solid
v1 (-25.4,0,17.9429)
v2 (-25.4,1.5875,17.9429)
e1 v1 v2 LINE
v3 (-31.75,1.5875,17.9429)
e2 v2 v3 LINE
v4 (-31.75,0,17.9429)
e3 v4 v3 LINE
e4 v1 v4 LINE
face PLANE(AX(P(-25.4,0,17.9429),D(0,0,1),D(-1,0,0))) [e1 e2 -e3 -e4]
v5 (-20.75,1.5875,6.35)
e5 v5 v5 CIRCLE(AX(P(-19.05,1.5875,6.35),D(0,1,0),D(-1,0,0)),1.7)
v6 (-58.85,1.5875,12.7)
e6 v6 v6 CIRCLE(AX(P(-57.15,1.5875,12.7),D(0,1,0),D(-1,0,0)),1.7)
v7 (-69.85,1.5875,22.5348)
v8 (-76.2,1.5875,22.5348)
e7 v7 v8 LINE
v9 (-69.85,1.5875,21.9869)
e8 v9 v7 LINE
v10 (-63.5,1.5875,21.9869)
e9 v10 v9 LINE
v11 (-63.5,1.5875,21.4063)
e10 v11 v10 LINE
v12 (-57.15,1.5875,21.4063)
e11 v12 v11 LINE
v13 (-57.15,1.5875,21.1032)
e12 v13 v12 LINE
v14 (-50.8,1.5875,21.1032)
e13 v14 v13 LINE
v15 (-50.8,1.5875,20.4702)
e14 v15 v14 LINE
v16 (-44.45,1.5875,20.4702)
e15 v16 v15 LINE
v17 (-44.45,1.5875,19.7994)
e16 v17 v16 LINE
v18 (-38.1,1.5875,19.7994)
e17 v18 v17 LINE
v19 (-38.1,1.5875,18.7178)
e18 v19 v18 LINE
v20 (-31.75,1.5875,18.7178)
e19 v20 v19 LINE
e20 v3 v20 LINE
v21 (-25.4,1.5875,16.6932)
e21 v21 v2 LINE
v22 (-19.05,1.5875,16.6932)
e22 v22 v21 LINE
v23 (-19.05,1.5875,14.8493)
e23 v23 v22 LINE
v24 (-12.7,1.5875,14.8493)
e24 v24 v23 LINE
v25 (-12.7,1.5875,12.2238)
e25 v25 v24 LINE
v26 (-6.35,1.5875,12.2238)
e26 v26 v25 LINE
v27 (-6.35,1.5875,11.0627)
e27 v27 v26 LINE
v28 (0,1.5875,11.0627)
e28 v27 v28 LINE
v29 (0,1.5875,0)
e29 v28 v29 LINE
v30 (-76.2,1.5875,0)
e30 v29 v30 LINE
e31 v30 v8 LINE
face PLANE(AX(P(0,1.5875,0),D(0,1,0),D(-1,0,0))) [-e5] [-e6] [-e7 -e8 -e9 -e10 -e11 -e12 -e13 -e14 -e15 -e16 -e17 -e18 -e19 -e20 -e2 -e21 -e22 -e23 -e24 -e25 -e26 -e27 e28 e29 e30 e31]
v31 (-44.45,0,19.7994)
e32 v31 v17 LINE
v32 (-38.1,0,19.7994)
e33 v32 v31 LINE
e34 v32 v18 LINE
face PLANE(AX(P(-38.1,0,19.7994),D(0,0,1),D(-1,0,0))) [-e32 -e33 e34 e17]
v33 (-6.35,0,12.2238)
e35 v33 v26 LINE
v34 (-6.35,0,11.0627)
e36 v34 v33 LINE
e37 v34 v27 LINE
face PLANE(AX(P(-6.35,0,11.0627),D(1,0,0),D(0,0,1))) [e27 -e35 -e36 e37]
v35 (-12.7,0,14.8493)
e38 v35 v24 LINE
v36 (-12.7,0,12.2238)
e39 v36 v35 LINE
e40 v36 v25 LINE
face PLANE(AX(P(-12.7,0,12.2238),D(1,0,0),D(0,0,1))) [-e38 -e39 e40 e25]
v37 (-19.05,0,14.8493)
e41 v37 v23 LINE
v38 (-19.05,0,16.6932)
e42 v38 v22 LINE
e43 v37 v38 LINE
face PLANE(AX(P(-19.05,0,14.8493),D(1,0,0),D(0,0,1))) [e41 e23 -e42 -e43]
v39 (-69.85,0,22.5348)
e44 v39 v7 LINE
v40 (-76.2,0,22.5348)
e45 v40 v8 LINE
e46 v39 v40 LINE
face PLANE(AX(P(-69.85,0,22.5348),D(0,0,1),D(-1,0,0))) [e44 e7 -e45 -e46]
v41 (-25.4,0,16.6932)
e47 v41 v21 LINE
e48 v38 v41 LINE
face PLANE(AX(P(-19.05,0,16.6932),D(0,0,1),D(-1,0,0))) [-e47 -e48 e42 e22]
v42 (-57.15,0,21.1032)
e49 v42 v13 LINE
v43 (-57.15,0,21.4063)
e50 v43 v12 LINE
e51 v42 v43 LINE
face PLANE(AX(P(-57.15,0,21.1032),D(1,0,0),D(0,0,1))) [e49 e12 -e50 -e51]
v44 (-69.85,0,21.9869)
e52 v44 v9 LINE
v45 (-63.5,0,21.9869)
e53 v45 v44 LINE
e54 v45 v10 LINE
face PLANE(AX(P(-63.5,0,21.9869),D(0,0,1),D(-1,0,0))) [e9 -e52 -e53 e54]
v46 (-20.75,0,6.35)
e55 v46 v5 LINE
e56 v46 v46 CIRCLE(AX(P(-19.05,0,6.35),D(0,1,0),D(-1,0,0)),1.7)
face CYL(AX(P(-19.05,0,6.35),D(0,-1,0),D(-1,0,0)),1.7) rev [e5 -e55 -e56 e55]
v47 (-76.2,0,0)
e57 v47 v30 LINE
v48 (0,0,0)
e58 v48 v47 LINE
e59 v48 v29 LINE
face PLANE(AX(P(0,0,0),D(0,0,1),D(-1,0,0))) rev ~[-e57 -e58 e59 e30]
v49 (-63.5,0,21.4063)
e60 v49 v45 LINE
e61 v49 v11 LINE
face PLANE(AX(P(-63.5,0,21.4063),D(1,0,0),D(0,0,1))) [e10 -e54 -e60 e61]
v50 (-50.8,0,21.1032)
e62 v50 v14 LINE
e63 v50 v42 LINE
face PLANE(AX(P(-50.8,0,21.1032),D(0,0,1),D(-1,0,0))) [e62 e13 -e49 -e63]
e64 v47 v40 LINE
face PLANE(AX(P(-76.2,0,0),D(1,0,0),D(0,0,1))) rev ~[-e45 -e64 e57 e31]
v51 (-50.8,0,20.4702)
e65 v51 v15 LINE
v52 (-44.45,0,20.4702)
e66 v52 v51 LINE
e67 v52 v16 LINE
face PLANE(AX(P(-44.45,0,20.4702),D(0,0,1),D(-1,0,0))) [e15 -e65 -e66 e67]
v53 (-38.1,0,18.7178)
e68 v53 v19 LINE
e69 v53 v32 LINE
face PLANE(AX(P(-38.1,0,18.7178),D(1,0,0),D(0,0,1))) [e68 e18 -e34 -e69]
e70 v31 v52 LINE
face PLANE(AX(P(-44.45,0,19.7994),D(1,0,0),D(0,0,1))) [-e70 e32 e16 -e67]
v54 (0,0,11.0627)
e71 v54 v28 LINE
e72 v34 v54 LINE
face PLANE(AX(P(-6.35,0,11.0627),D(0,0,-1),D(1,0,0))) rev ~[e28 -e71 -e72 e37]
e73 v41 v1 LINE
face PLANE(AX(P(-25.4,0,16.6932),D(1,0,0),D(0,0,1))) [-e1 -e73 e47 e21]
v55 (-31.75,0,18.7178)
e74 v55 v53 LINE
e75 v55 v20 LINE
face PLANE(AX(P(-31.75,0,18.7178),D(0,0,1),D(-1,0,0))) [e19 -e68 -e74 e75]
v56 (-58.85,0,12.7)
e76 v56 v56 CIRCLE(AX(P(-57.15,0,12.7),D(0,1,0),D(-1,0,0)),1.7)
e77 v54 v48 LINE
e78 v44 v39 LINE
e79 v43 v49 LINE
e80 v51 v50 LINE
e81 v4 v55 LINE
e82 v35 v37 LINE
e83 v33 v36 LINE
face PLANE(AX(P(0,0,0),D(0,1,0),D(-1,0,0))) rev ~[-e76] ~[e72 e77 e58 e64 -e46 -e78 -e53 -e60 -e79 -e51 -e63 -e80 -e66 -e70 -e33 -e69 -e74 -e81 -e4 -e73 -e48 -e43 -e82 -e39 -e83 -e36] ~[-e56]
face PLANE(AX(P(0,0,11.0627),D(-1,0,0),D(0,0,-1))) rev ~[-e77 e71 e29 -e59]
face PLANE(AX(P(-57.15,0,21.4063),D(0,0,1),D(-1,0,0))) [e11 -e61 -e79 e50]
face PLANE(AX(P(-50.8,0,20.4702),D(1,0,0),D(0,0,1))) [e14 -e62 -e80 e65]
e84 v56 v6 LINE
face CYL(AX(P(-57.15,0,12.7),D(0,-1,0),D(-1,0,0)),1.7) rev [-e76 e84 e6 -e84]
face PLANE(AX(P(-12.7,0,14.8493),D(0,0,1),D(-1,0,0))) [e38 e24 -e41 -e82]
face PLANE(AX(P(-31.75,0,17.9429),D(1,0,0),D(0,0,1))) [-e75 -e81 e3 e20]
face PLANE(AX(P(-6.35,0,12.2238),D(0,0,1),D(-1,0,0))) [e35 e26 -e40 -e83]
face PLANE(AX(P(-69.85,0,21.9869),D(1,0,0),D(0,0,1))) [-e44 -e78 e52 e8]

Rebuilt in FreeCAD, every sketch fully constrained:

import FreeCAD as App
import Part
import Sketcher
from FreeCAD import Vector
Q = App.Units.Quantity

doc = App.newDocument("Part")
body = doc.addObject("PartDesign::Body", "Body")

# Sketch on XZ plane
sketch1 = body.newObject("Sketcher::SketchObject", "Sketch")
sketch1.AttachmentSupport = (doc.getObject("XZ_Plane"), [""])
sketch1.MapMode = "FlatFace"
sketch1.addGeometry([
    Part.LineSegment(Vector(-6.35, 12.22, 0), Vector(-6.35, 11.06, 0)),  # 0
    Part.LineSegment(Vector(-6.35, 11.06, 0), Vector(0, 11.06, 0)),  # 1
    Part.LineSegment(Vector(0, 11.06, 0), Vector(0, 0, 0)),  # 2
    Part.LineSegment(Vector(0, 0, 0), Vector(-76.2, 0, 0)),  # 3
    Part.LineSegment(Vector(-76.2, 0, 0), Vector(-76.2, 22.53, 0)),  # 4
    Part.LineSegment(Vector(-76.2, 22.53, 0), Vector(-69.85, 22.53, 0)),  # 5
    Part.LineSegment(Vector(-69.85, 22.53, 0), Vector(-69.85, 21.99, 0)),  # 6
    Part.LineSegment(Vector(-69.85, 21.99, 0), Vector(-63.5, 21.99, 0)),  # 7
    Part.LineSegment(Vector(-63.5, 21.99, 0), Vector(-63.5, 21.41, 0)),  # 8
    Part.LineSegment(Vector(-63.5, 21.41, 0), Vector(-57.15, 21.41, 0)),  # 9
    Part.LineSegment(Vector(-57.15, 21.41, 0), Vector(-57.15, 21.1, 0)),  # 10
    Part.LineSegment(Vector(-57.15, 21.1, 0), Vector(-50.8, 21.1, 0)),  # 11
    Part.LineSegment(Vector(-50.8, 21.1, 0), Vector(-50.8, 20.47, 0)),  # 12
    Part.LineSegment(Vector(-50.8, 20.47, 0), Vector(-44.45, 20.47, 0)),  # 13
    Part.LineSegment(Vector(-44.45, 20.47, 0), Vector(-44.45, 19.8, 0)),  # 14
    Part.LineSegment(Vector(-44.45, 19.8, 0), Vector(-38.1, 19.8, 0)),  # 15
    Part.LineSegment(Vector(-38.1, 19.8, 0), Vector(-38.1, 18.72, 0)),  # 16
    Part.LineSegment(Vector(-38.1, 18.72, 0), Vector(-31.75, 18.72, 0)),  # 17
    Part.LineSegment(Vector(-31.75, 18.72, 0), Vector(-31.75, 17.94, 0)),  # 18
    Part.LineSegment(Vector(-31.75, 17.94, 0), Vector(-25.4, 17.94, 0)),  # 19
    Part.LineSegment(Vector(-25.4, 17.94, 0), Vector(-25.4, 16.69, 0)),  # 20
    Part.LineSegment(Vector(-25.4, 16.69, 0), Vector(-19.05, 16.69, 0)),  # 21
    Part.LineSegment(Vector(-19.05, 16.69, 0), Vector(-19.05, 14.85, 0)),  # 22
    Part.LineSegment(Vector(-19.05, 14.85, 0), Vector(-12.7, 14.85, 0)),  # 23
    Part.LineSegment(Vector(-12.7, 14.85, 0), Vector(-12.7, 12.22, 0)),  # 24
    Part.LineSegment(Vector(-12.7, 12.22, 0), Vector(-6.35, 12.22, 0)),  # 25
    Part.Circle(Vector(-19.05, 6.35, 0), Vector(0, 0, 1), 1.7),  # 26
    Part.Circle(Vector(-57.15, 12.7, 0), Vector(0, 0, 1), 1.7),  # 27
], False)
sketch1.addConstraint([
    Sketcher.Constraint("Coincident", 0, 2, 1, 1),
    Sketcher.Constraint("Coincident", 1, 2, 2, 1),
    Sketcher.Constraint("Coincident", 2, 2, 3, 1),
    Sketcher.Constraint("Coincident", 3, 2, 4, 1),
    Sketcher.Constraint("Coincident", 4, 2, 5, 1),
    Sketcher.Constraint("Coincident", 5, 2, 6, 1),
    Sketcher.Constraint("Coincident", 6, 2, 7, 1),
    Sketcher.Constraint("Coincident", 7, 2, 8, 1),
    Sketcher.Constraint("Coincident", 8, 2, 9, 1),
    Sketcher.Constraint("Coincident", 9, 2, 10, 1),
    Sketcher.Constraint("Coincident", 10, 2, 11, 1),
    Sketcher.Constraint("Coincident", 11, 2, 12, 1),
    Sketcher.Constraint("Coincident", 12, 2, 13, 1),
    Sketcher.Constraint("Coincident", 13, 2, 14, 1),
    Sketcher.Constraint("Coincident", 14, 2, 15, 1),
    Sketcher.Constraint("Coincident", 15, 2, 16, 1),
    Sketcher.Constraint("Coincident", 16, 2, 17, 1),
    Sketcher.Constraint("Coincident", 17, 2, 18, 1),
    Sketcher.Constraint("Coincident", 18, 2, 19, 1),
    Sketcher.Constraint("Coincident", 19, 2, 20, 1),
    Sketcher.Constraint("Coincident", 20, 2, 21, 1),
    Sketcher.Constraint("Coincident", 21, 2, 22, 1),
    Sketcher.Constraint("Coincident", 22, 2, 23, 1),
    Sketcher.Constraint("Coincident", 23, 2, 24, 1),
    Sketcher.Constraint("Coincident", 24, 2, 25, 1),
    Sketcher.Constraint("Coincident", 25, 2, 0, 1),
    Sketcher.Constraint("Vertical", 0),
    Sketcher.Constraint("Horizontal", 1),
    Sketcher.Constraint("Vertical", 2),
    Sketcher.Constraint("Horizontal", 3),
    Sketcher.Constraint("Vertical", 4),
    Sketcher.Constraint("Horizontal", 5),
    Sketcher.Constraint("Vertical", 6),
    Sketcher.Constraint("Horizontal", 7),
    Sketcher.Constraint("Vertical", 8),
    Sketcher.Constraint("Horizontal", 9),
    Sketcher.Constraint("Vertical", 10),
    Sketcher.Constraint("Horizontal", 11),
    Sketcher.Constraint("Vertical", 12),
    Sketcher.Constraint("Horizontal", 13),
    Sketcher.Constraint("Vertical", 14),
    Sketcher.Constraint("Horizontal", 15),
    Sketcher.Constraint("Vertical", 16),
    Sketcher.Constraint("Horizontal", 17),
    Sketcher.Constraint("Vertical", 18),
    Sketcher.Constraint("Horizontal", 19),
    Sketcher.Constraint("Vertical", 20),
    Sketcher.Constraint("Horizontal", 21),
    Sketcher.Constraint("Vertical", 22),
    Sketcher.Constraint("Horizontal", 23),
    Sketcher.Constraint("Vertical", 24),
    Sketcher.Constraint("Horizontal", 25),
    Sketcher.Constraint("Coincident", 2, 2, -1, 1),
    Sketcher.Constraint("Equal", 26, 27),
    Sketcher.Constraint("Vertical", 27, 3, 9, 2),
    Sketcher.Constraint("Vertical", 26, 3, 21, 2),
    Sketcher.Constraint("Equal", 1, 5),
    Sketcher.Constraint("Equal", 5, 7),
    Sketcher.Constraint("Equal", 7, 9),
    Sketcher.Constraint("Equal", 9, 11),
    Sketcher.Constraint("Equal", 11, 13),
    Sketcher.Constraint("Equal", 13, 15),
    Sketcher.Constraint("Equal", 15, 17),
    Sketcher.Constraint("Equal", 17, 19),
    Sketcher.Constraint("Equal", 19, 21),
    Sketcher.Constraint("Equal", 21, 23),
    Sketcher.Constraint("Equal", 23, 25),
    Sketcher.Constraint("DistanceX", 3, 2, 3, 1, Q("3 in")),
    Sketcher.Constraint("DistanceY", -1, 1, 27, 3, Q("0.5 in")),
    Sketcher.Constraint("Diameter", 26, 3.4),
    Sketcher.Constraint("DistanceY", -1, 1, 26, 3, Q("0.25 in")),
    Sketcher.Constraint("DistanceY", 4, 1, 4, 2, Q("0.8872 in")),
    Sketcher.Constraint("DistanceY", 14, 2, 14, 1, Q("0.0264 in")),
    Sketcher.Constraint("DistanceY", 18, 2, 18, 1, Q("0.0305 in")),
    Sketcher.Constraint("DistanceY", 20, 2, 20, 1, Q("0.0492 in")),
    Sketcher.Constraint("DistanceY", 22, 2, 22, 1, Q("0.0726 in")),
    Sketcher.Constraint("DistanceY", 16, 2, 13, 2, Q("0.069 in")),
    Sketcher.Constraint("DistanceY", 0, 2, 0, 1, Q("0.0457087 in")),
    Sketcher.Constraint("DistanceY", 2, 2, 2, 1, 11.0627),
    Sketcher.Constraint("DistanceY", 6, 2, 6, 1, 0.548),
    Sketcher.Constraint("DistanceY", 8, 2, 8, 1, 0.5806),
    Sketcher.Constraint("DistanceY", 10, 2, 10, 1, 0.303),
    Sketcher.Constraint("DistanceY", 12, 2, 12, 1, 0.633),
])
pad1 = body.newObject("PartDesign::Pad", "Pad")
pad1.Profile = sketch1
pad1.Length = Q("0.0625 in")
pad1.Reversed = True

doc.recompute()
